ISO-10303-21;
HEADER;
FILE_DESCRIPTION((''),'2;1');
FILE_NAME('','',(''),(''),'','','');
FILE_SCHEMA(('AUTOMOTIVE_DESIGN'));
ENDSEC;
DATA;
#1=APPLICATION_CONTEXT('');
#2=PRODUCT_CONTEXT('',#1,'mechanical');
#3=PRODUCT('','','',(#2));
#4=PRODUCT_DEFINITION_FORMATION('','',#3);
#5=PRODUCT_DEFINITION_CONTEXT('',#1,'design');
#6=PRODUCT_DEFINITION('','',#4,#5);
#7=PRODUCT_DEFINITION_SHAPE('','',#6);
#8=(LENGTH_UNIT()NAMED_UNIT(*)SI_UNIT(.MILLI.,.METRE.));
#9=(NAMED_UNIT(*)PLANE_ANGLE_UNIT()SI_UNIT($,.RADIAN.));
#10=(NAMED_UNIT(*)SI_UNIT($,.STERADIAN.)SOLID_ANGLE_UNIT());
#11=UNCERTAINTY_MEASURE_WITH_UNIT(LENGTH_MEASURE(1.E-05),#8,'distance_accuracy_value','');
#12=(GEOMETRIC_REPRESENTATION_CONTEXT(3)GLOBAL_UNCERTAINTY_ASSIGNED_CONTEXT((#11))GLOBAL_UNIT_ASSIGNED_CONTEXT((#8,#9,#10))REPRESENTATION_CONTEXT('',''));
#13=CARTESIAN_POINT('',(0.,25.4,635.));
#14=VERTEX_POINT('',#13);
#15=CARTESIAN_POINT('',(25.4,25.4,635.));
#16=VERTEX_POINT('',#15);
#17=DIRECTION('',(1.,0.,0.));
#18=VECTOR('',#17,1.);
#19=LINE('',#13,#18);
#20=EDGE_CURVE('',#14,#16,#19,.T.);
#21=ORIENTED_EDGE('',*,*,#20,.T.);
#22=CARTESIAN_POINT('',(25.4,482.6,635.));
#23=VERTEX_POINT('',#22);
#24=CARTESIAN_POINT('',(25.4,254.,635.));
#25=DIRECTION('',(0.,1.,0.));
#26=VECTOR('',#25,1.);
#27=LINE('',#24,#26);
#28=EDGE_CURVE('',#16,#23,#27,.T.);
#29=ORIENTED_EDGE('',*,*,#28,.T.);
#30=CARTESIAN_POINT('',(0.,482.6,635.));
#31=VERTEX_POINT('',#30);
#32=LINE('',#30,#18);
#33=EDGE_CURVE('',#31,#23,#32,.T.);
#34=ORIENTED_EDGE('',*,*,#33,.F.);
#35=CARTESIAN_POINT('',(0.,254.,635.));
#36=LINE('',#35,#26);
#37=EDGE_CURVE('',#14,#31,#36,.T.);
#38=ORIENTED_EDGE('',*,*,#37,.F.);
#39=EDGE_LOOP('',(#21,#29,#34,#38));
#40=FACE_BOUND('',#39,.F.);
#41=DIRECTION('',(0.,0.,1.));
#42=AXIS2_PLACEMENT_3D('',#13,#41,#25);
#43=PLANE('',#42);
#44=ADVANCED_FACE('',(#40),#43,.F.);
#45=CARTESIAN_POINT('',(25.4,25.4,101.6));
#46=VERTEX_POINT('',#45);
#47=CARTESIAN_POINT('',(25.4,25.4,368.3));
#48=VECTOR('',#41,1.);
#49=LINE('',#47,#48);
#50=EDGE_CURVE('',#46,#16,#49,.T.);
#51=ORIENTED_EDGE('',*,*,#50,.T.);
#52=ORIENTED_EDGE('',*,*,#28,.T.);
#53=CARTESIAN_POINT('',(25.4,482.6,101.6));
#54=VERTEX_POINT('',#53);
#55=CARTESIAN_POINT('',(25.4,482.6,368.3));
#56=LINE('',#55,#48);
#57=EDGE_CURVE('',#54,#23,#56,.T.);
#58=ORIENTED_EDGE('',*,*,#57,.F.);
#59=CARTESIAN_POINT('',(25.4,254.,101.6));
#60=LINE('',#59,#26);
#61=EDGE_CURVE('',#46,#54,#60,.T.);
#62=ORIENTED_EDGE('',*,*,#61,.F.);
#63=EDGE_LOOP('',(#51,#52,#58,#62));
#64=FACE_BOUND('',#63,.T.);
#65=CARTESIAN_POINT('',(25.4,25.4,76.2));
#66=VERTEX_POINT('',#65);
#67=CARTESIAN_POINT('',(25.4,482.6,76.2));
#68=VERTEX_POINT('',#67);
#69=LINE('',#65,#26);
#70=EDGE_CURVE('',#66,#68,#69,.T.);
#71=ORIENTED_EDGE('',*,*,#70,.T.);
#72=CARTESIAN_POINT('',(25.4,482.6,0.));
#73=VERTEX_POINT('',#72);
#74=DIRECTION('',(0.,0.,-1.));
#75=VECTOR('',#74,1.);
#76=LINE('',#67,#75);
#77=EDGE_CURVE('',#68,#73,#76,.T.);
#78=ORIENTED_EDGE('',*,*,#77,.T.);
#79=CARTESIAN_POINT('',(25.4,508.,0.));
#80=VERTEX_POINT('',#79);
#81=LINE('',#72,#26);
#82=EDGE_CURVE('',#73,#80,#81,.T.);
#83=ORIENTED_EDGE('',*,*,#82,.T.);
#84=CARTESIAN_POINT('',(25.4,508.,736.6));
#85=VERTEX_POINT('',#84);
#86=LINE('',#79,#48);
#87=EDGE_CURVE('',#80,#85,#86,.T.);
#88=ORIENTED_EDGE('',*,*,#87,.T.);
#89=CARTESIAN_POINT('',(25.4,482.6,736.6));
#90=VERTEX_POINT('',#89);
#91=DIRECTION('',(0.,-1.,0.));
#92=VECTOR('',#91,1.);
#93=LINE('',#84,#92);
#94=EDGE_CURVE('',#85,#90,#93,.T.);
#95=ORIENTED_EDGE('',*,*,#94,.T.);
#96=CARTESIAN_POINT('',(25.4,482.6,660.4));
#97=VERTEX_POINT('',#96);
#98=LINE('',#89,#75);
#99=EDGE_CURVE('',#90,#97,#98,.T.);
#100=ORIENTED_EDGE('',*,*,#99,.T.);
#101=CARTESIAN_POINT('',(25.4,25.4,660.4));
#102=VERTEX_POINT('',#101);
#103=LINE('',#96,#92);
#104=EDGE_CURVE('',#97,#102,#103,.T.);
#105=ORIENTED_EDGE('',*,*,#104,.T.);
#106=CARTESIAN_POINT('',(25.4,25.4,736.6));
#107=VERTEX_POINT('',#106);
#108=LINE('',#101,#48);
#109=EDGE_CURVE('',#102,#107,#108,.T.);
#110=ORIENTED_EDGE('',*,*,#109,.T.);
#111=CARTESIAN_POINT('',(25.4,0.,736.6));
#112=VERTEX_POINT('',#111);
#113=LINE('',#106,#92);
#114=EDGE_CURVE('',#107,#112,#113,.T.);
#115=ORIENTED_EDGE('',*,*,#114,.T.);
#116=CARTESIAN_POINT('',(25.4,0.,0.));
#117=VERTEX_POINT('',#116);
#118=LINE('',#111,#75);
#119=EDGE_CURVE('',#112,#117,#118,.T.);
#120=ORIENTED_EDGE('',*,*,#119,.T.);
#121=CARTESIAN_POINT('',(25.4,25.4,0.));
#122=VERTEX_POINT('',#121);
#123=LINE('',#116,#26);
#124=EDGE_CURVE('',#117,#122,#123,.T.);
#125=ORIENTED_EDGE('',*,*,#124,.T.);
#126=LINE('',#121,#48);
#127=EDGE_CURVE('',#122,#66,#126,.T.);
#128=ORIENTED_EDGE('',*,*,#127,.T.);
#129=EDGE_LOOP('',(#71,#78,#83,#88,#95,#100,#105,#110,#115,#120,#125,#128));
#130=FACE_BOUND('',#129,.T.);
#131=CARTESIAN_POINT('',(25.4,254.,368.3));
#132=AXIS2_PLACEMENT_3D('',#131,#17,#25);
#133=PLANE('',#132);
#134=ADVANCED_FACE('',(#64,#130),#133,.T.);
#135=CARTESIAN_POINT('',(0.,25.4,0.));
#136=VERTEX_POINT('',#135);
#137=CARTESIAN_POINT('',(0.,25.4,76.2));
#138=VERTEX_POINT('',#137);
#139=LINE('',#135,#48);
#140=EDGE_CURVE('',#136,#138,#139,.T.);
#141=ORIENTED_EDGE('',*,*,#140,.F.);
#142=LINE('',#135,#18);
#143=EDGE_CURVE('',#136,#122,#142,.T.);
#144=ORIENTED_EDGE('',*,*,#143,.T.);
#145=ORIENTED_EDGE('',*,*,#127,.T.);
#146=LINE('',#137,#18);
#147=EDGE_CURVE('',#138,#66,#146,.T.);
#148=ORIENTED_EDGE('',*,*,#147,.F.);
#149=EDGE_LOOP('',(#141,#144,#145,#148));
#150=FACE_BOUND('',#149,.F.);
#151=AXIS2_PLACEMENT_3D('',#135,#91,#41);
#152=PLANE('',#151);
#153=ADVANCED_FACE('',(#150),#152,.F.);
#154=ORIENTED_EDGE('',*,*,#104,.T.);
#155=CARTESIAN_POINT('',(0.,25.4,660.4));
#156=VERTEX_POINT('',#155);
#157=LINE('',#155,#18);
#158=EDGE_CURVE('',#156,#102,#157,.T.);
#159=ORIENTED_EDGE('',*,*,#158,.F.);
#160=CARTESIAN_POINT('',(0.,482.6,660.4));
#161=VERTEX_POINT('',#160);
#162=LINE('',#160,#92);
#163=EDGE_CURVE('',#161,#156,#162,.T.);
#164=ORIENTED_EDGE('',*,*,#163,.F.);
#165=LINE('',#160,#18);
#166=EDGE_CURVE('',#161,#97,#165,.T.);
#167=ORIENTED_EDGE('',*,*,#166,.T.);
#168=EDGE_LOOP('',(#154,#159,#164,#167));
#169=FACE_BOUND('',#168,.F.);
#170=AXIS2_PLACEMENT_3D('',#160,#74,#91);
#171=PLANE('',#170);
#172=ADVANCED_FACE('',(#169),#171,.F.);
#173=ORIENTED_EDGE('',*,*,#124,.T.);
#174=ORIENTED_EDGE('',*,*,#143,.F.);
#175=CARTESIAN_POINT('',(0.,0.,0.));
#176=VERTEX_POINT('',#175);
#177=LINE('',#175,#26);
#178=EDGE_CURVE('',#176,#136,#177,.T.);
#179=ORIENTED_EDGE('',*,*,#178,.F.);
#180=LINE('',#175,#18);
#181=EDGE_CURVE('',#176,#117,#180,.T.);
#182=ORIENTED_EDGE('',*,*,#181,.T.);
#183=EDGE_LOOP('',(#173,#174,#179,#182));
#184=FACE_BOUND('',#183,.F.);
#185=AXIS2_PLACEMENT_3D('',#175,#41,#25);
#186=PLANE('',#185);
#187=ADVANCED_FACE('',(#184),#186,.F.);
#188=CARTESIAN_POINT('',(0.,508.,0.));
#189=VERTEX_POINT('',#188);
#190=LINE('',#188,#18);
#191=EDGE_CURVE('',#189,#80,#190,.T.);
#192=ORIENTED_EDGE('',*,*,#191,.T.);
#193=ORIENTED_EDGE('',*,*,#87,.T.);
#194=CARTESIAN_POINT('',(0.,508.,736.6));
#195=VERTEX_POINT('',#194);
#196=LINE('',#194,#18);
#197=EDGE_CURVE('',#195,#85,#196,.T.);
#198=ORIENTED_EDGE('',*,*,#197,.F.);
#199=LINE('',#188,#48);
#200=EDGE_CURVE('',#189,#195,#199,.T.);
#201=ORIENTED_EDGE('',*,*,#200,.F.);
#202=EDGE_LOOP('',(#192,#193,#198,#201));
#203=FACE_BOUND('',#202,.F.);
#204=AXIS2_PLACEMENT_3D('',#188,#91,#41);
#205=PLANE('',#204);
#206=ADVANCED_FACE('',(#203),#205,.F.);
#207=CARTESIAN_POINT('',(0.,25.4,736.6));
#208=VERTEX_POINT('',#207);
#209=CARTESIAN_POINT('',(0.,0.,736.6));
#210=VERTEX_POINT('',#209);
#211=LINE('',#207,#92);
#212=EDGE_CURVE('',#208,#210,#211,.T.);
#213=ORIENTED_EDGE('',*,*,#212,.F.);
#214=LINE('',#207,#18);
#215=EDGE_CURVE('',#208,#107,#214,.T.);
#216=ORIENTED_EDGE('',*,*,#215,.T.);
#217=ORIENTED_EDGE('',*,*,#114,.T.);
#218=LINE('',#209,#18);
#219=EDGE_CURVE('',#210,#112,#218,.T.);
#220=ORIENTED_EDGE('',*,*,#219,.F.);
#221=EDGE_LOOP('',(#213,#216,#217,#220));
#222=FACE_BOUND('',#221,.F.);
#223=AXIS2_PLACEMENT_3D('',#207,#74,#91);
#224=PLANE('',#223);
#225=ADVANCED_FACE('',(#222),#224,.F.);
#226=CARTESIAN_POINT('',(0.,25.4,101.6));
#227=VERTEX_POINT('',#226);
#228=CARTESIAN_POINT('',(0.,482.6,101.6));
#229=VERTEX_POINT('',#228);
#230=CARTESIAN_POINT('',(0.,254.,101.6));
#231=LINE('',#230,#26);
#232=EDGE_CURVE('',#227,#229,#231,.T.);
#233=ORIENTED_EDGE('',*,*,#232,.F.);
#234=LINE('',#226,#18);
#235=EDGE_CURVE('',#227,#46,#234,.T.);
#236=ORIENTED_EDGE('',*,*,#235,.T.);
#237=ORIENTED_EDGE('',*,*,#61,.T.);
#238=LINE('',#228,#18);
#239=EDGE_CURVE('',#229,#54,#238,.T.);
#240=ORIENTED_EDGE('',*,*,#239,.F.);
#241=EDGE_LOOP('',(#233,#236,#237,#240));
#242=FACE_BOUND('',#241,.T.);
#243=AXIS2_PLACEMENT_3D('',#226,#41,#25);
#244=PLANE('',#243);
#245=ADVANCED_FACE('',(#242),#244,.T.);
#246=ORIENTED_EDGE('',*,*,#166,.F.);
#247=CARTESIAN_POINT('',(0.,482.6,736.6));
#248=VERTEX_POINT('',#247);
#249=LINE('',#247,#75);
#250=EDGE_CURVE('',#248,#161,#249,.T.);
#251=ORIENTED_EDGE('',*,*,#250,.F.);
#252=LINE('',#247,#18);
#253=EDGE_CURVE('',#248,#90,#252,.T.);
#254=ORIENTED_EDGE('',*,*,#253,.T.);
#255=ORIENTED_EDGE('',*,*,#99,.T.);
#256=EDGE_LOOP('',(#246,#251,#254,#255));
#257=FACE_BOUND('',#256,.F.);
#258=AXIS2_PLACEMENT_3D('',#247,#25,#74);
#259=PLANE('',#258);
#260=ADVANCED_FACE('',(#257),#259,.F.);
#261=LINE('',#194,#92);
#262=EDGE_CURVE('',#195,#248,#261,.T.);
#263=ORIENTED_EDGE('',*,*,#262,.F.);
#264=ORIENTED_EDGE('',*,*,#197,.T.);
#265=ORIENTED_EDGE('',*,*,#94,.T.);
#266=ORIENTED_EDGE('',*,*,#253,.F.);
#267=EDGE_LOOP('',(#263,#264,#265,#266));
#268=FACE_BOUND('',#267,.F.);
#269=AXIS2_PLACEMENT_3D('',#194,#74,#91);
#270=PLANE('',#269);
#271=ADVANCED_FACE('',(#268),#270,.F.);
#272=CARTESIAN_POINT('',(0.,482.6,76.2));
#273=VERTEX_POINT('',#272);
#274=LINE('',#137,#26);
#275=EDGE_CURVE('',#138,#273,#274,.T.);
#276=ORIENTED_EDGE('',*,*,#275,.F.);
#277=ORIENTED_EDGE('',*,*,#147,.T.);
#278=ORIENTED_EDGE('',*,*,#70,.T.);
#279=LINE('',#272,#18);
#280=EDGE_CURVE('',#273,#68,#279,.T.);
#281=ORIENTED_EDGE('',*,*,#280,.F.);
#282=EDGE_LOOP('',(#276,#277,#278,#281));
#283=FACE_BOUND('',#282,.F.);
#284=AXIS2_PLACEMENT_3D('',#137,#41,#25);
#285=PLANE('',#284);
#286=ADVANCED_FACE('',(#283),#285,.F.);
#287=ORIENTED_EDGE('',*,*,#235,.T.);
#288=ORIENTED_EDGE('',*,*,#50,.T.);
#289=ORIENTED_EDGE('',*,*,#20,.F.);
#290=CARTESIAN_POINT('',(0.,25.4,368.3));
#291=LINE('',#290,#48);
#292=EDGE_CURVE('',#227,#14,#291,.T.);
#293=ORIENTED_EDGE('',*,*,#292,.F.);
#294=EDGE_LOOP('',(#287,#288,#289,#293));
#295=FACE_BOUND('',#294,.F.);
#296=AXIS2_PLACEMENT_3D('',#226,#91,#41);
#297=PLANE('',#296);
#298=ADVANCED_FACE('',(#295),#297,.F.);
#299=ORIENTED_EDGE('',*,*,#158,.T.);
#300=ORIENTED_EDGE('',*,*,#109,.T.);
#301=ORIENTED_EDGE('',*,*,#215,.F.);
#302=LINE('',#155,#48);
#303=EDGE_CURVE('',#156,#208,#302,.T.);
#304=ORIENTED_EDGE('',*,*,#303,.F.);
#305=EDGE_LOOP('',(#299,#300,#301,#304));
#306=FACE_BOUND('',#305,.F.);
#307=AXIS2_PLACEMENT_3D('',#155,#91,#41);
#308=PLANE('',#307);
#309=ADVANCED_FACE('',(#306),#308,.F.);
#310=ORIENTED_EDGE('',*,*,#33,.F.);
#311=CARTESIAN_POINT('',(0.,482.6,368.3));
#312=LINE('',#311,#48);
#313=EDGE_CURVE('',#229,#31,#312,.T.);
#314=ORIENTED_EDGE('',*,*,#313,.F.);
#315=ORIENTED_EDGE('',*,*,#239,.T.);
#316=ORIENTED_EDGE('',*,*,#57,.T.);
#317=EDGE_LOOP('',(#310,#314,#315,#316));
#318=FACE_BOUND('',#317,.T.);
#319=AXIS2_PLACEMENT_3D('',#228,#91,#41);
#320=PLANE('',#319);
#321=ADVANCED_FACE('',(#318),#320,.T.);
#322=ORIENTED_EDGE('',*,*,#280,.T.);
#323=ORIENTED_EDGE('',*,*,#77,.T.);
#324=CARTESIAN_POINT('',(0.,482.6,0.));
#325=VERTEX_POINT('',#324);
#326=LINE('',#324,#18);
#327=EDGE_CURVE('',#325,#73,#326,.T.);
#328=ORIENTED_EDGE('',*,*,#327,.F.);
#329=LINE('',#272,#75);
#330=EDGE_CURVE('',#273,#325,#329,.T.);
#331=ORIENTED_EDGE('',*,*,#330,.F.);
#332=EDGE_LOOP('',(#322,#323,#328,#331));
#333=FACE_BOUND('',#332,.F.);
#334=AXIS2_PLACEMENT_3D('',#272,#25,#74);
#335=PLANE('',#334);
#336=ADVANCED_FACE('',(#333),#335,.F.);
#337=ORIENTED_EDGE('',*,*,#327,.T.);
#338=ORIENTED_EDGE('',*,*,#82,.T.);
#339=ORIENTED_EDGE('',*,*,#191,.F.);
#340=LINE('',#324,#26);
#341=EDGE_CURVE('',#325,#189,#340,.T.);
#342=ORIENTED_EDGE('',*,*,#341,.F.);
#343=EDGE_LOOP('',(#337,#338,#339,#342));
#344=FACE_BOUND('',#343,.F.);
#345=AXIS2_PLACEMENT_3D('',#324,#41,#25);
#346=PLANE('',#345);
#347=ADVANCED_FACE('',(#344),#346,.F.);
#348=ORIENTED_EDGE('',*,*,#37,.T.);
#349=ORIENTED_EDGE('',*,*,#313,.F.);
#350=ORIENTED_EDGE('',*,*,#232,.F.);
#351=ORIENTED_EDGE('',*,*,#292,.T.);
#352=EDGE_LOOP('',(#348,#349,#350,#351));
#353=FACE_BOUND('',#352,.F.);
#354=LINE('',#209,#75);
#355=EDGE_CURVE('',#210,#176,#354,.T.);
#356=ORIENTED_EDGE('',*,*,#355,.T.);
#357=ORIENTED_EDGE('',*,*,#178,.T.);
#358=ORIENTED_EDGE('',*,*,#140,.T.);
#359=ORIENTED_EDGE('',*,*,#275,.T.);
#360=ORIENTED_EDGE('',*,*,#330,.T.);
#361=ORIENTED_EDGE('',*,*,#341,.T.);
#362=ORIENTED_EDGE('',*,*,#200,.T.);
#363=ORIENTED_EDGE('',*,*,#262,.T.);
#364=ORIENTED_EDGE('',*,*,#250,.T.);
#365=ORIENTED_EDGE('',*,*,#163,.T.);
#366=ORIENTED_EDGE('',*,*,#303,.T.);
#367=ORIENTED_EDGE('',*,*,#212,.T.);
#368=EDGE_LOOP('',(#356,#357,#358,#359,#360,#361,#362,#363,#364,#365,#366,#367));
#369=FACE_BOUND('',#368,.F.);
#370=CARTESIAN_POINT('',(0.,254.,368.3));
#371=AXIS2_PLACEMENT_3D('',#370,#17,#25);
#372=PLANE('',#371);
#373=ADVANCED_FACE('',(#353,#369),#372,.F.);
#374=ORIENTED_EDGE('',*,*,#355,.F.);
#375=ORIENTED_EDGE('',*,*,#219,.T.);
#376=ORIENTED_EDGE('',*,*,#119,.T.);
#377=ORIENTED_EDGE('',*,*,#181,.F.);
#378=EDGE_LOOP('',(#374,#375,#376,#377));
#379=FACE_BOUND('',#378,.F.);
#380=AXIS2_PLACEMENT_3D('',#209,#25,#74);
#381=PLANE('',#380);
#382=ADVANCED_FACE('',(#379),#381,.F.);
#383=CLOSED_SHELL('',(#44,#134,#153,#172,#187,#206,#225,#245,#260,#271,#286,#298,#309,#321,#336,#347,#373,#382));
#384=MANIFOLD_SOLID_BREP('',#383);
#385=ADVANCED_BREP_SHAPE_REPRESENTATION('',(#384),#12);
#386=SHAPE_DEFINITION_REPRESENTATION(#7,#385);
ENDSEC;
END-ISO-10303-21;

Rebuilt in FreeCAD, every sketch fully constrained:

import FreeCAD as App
import Part
import Sketcher
Q = App.Units.Quantity


def add_polygon(sketch, points):
    """Adds a closed chain of lines whose ends are joined by coincident constraints."""
    first, n = sketch.GeometryCount, len(points)
    for a, b in zip(points, points[1:] + points[:1]):
        sketch.addGeometry(Part.LineSegment(App.Vector(*a, 0), App.Vector(*b, 0)), False)
    for i in range(n):
        sketch.addConstraint(Sketcher.Constraint("Coincident", first + i, 2, first + (i + 1) % n, 1))

doc = App.newDocument("Part")
params = doc.addObject("Spreadsheet::Sheet", "Params")
for row, (alias, value) in enumerate([
    ("sketch1_width", "1 in"),
    ("sketch1_width2", "18 in"),
    ("sketch1_height", "29 in"),
    ("sketch1_height2", "3 in"),
    ("sketch1_height3", "21 in"),
    ("pad1_length", "1 in"),
], start=1):
    params.set(f"A{row}", alias)
    params.set(f"B{row}", "=" + value)
    params.setAlias(f"B{row}", alias)

body = doc.addObject("PartDesign::Body", "Body")

# Sketch on YZ plane
sketch1 = doc.addObject("Sketcher::SketchObject", "Sketch")
body.addObject(sketch1)
sketch1.AttachmentSupport = (doc.YZ_Plane, [""])
sketch1.MapMode = "FlatFace"
add_polygon(sketch1, [(0, 737), (0, 0), (25, 0), (25, 76), (483, 76), (483, 0), (508, 0), (508, 737), (483, 737), (483, 660), (25, 660), (25, 737)])  # lines 0-11
add_polygon(sketch1, [(483, 102), (25, 102), (25, 635), (483, 635)])  # lines 12-15
sketch1.addConstraint([
    Sketcher.Constraint("Vertical", 0),
    Sketcher.Constraint("Horizontal", 1),
    Sketcher.Constraint("Vertical", 2),
    Sketcher.Constraint("Horizontal", 3),
    Sketcher.Constraint("Vertical", 4),
    Sketcher.Constraint("Horizontal", 5),
    Sketcher.Constraint("Vertical", 6),
    Sketcher.Constraint("Horizontal", 7),
    Sketcher.Constraint("Vertical", 8),
    Sketcher.Constraint("Horizontal", 9),
    Sketcher.Constraint("Vertical", 10),
    Sketcher.Constraint("Horizontal", 11),
    Sketcher.Constraint("Horizontal", 12),
    Sketcher.Constraint("Vertical", 13),
    Sketcher.Constraint("Horizontal", 14),
    Sketcher.Constraint("Vertical", 15),
    Sketcher.Constraint("Coincident", 0, 2, -1, 1),
    Sketcher.Constraint("PointOnObject", 4, 2, -1),
    Sketcher.Constraint("Horizontal", 7, 2, 10, 2),
    Sketcher.Constraint("Vertical", 4, 2, 7, 2),
    Sketcher.Constraint("Vertical", 2, 2, 9, 2),
    Sketcher.Constraint("Vertical", 10, 2, 12, 2),
    Sketcher.Constraint("Vertical", 8, 2, 14, 2),
    Sketcher.Constraint("Equal", 1, 5),
    Sketcher.Constraint("Equal", 4, 8),
    Sketcher.Constraint("DistanceX", 1, 1, 1, 2, Q("1 in")),
    Sketcher.Constraint("DistanceX", 3, 1, 3, 2, Q("18 in")),
    Sketcher.Constraint("DistanceY", 0, 2, 0, 1, Q("29 in")),
    Sketcher.Constraint("DistanceY", 2, 1, 2, 2, Q("3 in")),
    Sketcher.Constraint("DistanceY", 13, 1, 13, 2, Q("21 in")),
    Sketcher.Constraint("DistanceY", -1, 1, 12, 2, Q("4 in")),
])
sketch1.setExpression("Constraints[41]", "Params.sketch1_width")
sketch1.setExpression("Constraints[42]", "Params.sketch1_width2")
sketch1.setExpression("Constraints[43]", "Params.sketch1_height")
sketch1.setExpression("Constraints[44]", "Params.sketch1_height2")
sketch1.setExpression("Constraints[45]", "Params.sketch1_height3")
pad1 = doc.addObject("PartDesign::Pad", "Pad")
body.addObject(pad1)
pad1.Profile = sketch1
pad1.setExpression("Length", "Params.pad1_length")

doc.recompute()
